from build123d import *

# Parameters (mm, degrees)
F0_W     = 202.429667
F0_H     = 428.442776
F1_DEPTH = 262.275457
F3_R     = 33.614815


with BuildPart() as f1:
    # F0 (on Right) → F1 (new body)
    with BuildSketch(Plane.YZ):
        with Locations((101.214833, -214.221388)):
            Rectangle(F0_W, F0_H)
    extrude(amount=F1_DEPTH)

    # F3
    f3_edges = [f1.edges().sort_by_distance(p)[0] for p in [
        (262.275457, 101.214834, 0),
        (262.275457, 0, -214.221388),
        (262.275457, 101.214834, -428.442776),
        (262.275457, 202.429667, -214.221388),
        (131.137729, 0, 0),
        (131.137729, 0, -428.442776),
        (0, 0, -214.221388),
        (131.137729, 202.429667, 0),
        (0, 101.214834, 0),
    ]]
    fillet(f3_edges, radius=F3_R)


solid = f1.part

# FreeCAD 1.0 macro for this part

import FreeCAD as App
import Part
import Sketcher

V = App.Vector


def edges_at(feature, points):
    """Names of the edges that pass closest to the given points."""
    edges = feature.Shape.Edges
    near = lambda p: min(range(len(edges)), key=lambda i: edges[i].distToShape(Part.Vertex(*p))[0])
    return sorted({f"Edge{near(p) + 1}" for p in points})


def add_polygon(sketch, points):
    """Adds a closed chain of lines whose ends are joined by coincident constraints."""
    first, n = sketch.GeometryCount, len(points)
    for a, b in zip(points, points[1:] + points[:1]):
        sketch.addGeometry(Part.LineSegment(App.Vector(*a, 0), App.Vector(*b, 0)), False)
    for i in range(n):
        sketch.addConstraint(Sketcher.Constraint("Coincident", first + i, 2, first + (i + 1) % n, 1))

doc = App.newDocument("Part")
body = doc.addObject("PartDesign::Body", "Body")

sketch1 = doc.addObject("Sketcher::SketchObject", "Sketch")
body.addObject(sketch1)
sketch1.AttachmentSupport = (doc.YZ_Plane, [""])
sketch1.MapMode = "FlatFace"
add_polygon(sketch1, [(0, 0), (0, -428), (202, -428), (202, 0)])
sketch1.addConstraint([
    Sketcher.Constraint("Vertical", 0),
    Sketcher.Constraint("Horizontal", 1),
    Sketcher.Constraint("Vertical", 2),
    Sketcher.Constraint("Horizontal", 3),
    Sketcher.Constraint("Coincident", 3, 2, -1, 1),
    Sketcher.Constraint("DistanceX", 1, 1, 1, 2, 202.429667),
    Sketcher.Constraint("DistanceY", 0, 2, 0, 1, 428.442776),
])
pad1 = doc.addObject("PartDesign::Pad", "Pad")
body.addObject(pad1)
pad1.Profile = sketch1
pad1.Length = 262.275457
doc.recompute()

fillet = doc.addObject("PartDesign::Fillet", "Fillet")
body.addObject(fillet)
fillet.Base = (pad1, edges_at(pad1, [
    (262.275, 101.215, 0),
    (262.275, 0, -214.221),
    (262.275, 101.215, -428.443),
    (262.275, 202.43, -214.221),
    (131.138, 0, 0),
    (131.138, 0, -428.443),
    (0, 0, -214.221),
    (131.138, 202.43, 0),
    (0, 101.215, 0),
]))
fillet.Radius = 33.614815

doc.recompute()
